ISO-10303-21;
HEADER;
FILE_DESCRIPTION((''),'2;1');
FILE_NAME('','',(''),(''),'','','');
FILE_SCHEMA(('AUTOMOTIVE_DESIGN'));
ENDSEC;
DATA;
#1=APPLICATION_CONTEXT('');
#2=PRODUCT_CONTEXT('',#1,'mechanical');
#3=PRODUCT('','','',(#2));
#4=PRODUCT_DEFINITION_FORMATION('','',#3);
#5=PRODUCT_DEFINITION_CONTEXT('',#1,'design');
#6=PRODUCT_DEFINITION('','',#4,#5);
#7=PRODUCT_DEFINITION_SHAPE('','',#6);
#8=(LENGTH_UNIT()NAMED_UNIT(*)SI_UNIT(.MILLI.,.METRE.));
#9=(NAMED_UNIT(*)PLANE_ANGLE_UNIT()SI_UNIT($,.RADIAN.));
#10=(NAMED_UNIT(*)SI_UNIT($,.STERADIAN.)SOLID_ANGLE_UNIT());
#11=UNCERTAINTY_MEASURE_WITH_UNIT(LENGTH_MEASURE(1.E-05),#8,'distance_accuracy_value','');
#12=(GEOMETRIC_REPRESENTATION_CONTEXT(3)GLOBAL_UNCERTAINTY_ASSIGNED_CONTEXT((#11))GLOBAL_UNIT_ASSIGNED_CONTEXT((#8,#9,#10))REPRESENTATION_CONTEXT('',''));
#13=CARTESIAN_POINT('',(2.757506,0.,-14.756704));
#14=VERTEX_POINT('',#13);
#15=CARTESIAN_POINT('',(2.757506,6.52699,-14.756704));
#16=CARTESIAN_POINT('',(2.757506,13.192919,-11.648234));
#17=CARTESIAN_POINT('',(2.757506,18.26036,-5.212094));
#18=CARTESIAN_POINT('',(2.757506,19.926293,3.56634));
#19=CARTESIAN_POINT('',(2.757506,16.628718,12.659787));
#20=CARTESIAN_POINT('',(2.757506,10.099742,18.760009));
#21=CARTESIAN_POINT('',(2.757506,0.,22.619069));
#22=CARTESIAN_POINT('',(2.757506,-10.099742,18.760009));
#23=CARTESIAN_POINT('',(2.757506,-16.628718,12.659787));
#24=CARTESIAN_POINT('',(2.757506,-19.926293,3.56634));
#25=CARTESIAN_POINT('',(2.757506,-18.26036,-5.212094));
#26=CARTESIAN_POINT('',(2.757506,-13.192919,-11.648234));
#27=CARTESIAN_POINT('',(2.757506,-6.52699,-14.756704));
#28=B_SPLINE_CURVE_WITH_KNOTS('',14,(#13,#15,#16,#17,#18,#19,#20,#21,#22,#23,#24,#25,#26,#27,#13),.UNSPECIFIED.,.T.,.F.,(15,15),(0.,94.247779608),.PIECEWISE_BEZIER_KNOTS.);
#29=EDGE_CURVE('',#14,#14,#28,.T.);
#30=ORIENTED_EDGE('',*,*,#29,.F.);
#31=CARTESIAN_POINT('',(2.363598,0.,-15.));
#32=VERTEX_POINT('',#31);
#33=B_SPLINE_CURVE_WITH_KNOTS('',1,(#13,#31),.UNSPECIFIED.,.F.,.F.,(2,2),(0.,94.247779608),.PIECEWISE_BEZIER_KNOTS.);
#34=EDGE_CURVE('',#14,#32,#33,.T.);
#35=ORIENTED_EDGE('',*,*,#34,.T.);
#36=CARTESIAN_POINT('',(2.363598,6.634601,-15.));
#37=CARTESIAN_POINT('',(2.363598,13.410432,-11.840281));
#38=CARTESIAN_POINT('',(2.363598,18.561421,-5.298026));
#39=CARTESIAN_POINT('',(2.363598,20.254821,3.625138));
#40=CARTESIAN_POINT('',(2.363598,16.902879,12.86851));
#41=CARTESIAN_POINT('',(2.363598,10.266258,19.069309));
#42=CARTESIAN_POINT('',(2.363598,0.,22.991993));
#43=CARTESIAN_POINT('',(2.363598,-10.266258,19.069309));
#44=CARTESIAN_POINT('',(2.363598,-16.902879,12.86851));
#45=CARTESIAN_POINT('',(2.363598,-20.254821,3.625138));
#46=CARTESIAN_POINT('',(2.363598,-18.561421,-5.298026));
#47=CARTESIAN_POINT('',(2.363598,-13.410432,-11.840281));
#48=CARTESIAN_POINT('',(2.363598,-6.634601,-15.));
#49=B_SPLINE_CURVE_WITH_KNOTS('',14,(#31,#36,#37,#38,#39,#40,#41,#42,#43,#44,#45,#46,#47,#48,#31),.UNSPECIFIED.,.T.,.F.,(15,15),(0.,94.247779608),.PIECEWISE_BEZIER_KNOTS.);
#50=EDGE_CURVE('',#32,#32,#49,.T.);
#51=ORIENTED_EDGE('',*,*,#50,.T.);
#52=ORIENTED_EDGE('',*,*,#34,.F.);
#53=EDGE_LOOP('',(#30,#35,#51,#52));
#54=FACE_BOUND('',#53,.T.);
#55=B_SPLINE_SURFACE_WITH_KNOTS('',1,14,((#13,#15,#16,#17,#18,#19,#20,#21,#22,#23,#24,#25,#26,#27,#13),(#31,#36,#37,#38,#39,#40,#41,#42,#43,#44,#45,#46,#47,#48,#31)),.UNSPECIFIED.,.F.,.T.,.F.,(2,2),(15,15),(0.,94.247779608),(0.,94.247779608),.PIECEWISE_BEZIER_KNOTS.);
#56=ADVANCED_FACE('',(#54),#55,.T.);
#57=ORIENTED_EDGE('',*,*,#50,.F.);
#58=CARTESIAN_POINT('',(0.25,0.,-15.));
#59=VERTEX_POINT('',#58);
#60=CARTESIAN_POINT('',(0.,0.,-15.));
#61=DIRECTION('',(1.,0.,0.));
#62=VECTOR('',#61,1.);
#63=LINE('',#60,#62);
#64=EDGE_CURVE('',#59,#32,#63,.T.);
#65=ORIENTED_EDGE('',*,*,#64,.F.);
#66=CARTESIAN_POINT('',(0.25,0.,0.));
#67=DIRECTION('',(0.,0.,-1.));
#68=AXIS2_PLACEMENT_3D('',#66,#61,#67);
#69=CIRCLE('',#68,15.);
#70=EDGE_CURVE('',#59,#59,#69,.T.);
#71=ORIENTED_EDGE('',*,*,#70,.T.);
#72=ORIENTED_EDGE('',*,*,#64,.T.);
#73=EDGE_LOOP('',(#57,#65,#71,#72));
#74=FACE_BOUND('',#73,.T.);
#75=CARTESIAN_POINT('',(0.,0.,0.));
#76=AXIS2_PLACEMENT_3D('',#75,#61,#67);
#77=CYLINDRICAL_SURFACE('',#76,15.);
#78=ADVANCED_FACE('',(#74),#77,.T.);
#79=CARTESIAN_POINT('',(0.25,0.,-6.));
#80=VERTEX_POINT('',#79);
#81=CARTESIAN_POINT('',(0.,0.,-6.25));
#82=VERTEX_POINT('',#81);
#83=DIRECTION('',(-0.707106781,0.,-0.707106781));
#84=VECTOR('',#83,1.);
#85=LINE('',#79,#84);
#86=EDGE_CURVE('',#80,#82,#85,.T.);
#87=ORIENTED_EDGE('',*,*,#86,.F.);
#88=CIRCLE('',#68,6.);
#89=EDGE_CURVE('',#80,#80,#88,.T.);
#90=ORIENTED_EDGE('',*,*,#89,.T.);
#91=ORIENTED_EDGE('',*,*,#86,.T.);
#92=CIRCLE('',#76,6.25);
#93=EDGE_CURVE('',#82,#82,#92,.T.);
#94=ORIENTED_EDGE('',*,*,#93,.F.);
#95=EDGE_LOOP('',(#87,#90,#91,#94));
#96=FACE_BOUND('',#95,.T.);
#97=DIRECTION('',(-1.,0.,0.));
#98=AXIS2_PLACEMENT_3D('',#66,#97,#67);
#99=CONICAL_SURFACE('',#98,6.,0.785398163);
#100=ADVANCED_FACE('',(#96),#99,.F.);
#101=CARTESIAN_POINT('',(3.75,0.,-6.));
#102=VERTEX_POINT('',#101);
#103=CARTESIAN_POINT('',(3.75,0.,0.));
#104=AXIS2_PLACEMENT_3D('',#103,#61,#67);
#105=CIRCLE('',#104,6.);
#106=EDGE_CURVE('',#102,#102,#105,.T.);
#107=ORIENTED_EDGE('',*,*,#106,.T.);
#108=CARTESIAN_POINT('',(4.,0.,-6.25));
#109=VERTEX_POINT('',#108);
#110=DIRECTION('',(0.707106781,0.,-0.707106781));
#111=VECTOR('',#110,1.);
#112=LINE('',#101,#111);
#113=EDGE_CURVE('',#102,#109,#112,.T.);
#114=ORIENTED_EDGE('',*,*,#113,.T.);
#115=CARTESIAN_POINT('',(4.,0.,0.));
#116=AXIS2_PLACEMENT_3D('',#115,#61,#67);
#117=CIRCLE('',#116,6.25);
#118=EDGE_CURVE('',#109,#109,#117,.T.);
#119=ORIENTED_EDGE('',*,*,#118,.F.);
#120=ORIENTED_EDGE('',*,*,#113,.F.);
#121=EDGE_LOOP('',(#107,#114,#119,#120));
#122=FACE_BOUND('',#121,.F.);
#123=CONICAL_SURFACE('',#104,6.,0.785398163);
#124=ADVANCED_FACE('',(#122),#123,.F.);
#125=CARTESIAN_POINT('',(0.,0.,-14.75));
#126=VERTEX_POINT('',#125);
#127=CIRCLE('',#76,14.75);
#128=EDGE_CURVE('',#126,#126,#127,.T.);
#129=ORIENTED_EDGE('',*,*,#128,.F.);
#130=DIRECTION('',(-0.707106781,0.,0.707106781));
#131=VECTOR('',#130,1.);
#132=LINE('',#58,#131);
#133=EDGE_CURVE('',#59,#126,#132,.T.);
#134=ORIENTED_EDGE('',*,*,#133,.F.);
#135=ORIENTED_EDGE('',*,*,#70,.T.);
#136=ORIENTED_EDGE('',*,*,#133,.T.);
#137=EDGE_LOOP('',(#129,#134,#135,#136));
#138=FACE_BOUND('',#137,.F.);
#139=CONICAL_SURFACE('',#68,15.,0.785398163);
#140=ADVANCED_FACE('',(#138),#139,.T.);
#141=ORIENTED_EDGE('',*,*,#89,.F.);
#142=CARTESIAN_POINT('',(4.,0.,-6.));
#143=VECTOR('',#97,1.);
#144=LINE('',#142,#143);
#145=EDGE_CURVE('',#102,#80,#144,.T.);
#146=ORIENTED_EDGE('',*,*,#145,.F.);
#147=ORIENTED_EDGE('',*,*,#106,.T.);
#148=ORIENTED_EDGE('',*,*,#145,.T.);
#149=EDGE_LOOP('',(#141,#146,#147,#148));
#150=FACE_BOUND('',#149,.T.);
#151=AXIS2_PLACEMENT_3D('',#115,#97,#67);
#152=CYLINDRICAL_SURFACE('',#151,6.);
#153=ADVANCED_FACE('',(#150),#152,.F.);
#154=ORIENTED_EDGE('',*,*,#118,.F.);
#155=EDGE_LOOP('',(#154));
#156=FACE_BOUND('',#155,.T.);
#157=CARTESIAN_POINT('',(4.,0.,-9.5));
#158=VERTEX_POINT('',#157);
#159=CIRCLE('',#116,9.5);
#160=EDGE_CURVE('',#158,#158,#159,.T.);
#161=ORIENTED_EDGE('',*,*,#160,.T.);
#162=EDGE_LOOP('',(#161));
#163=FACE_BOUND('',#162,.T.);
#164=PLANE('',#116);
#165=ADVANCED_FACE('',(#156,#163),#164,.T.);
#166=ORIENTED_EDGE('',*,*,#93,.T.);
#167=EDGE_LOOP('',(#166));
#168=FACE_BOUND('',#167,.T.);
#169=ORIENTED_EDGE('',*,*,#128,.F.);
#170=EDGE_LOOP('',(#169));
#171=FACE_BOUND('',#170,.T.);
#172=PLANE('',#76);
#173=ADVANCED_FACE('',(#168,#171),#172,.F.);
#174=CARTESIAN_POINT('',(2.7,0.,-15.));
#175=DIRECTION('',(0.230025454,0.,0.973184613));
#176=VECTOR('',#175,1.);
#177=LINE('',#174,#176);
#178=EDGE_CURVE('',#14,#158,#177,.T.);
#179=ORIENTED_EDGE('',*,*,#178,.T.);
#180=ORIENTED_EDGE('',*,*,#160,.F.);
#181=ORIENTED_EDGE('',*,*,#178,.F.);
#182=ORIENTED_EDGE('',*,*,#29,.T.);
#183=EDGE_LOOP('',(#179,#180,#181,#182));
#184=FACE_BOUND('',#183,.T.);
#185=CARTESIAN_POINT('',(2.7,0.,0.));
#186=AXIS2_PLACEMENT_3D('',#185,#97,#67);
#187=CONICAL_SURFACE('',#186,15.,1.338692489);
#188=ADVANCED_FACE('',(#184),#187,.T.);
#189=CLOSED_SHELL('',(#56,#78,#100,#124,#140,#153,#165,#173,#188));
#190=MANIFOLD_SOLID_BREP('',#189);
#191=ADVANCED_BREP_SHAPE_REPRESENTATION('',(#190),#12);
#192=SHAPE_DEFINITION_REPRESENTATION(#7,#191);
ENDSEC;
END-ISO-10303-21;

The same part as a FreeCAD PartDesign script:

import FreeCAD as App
import Part
import Sketcher

V = App.Vector
Q = App.Units.Quantity


def edges_at(feature, points):
    """Names of the edges that pass closest to the given points."""
    edges = feature.Shape.Edges
    near = lambda p: min(range(len(edges)), key=lambda i: edges[i].distToShape(Part.Vertex(*p))[0])
    return sorted({f"Edge{near(p) + 1}" for p in points})

doc = App.newDocument("Part")
body = doc.addObject("PartDesign::Body", "Body")

# Sketch on XZ plane
sketch1 = doc.addObject("Sketcher::SketchObject", "Sketch")
body.addObject(sketch1)
sketch1.AttachmentSupport = (doc.XZ_Plane, [""])
sketch1.MapMode = "FlatFace"
sketch1.addGeometry([
    Part.LineSegment(V(4, -9.5, 0), V(2.7, -15, 0)),  # 0
    Part.LineSegment(V(2.7, -15, 0), V(0, -15, 0)),  # 1
    Part.LineSegment(V(0, -15, 0), V(0, -6, 0)),  # 2
    Part.LineSegment(V(0, -6, 0), V(4, -6, 0)),  # 3
    Part.LineSegment(V(4, -6, 0), V(4, -9.5, 0)),  # 4
], False)
sketch1.addConstraint([
    Sketcher.Constraint("Coincident", 0, 2, 1, 1),
    Sketcher.Constraint("Coincident", 1, 2, 2, 1),
    Sketcher.Constraint("Coincident", 2, 2, 3, 1),
    Sketcher.Constraint("Coincident", 3, 2, 4, 1),
    Sketcher.Constraint("Coincident", 4, 2, 0, 1),
    Sketcher.Constraint("Horizontal", 1),
    Sketcher.Constraint("Vertical", 2),
    Sketcher.Constraint("Horizontal", 3),
    Sketcher.Constraint("Vertical", 4),
    Sketcher.Constraint("PointOnObject", 1, 2, -2),
    Sketcher.Constraint("DistanceX", 3, 1, 3, 2, Q("4 mm")),
    Sketcher.Constraint("DistanceY", 2, 1, 2, 2, Q("9 mm")),
    Sketcher.Constraint("DistanceX", 1, 2, 1, 1, Q("2.7 mm")),
    Sketcher.Constraint("DistanceY", 4, 2, 4, 1, Q("3.5 mm")),
    Sketcher.Constraint("DistanceY", 0, 2, -1, 1, Q("15 mm")),
])
revolution = doc.addObject("PartDesign::Revolution", "Revolution")
body.addObject(revolution)
revolution.Profile = sketch1
revolution.ReferenceAxis = (sketch1, ["H_Axis"])
revolution.Angle = 360
doc.recompute()

chamfer = doc.addObject("PartDesign::Chamfer", "Chamfer")
body.addObject(chamfer)
chamfer.Base = (revolution, edges_at(revolution, [(0, 0, 6)]))
chamfer.Size = 0.25
doc.recompute()

chamfer2 = doc.addObject("PartDesign::Chamfer", "Chamfer001")
body.addObject(chamfer2)
chamfer2.Base = (chamfer, edges_at(chamfer, [(4, 0, 6)]))
chamfer2.Size = 0.25
doc.recompute()

chamfer3 = doc.addObject("PartDesign::Chamfer", "Chamfer002")
body.addObject(chamfer3)
chamfer3.Base = (chamfer2, edges_at(chamfer2, [(2.7, 0, 15)]))
chamfer3.ChamferType = "Two distances"
chamfer3.Size = 0.25
chamfer3.Size2 = 0.336402
doc.recompute()

chamfer4 = doc.addObject("PartDesign::Chamfer", "Chamfer003")
body.addObject(chamfer4)
chamfer4.Base = (chamfer3, edges_at(chamfer3, [(0, 0, 15)]))
chamfer4.Size = 0.25

doc.recompute()
